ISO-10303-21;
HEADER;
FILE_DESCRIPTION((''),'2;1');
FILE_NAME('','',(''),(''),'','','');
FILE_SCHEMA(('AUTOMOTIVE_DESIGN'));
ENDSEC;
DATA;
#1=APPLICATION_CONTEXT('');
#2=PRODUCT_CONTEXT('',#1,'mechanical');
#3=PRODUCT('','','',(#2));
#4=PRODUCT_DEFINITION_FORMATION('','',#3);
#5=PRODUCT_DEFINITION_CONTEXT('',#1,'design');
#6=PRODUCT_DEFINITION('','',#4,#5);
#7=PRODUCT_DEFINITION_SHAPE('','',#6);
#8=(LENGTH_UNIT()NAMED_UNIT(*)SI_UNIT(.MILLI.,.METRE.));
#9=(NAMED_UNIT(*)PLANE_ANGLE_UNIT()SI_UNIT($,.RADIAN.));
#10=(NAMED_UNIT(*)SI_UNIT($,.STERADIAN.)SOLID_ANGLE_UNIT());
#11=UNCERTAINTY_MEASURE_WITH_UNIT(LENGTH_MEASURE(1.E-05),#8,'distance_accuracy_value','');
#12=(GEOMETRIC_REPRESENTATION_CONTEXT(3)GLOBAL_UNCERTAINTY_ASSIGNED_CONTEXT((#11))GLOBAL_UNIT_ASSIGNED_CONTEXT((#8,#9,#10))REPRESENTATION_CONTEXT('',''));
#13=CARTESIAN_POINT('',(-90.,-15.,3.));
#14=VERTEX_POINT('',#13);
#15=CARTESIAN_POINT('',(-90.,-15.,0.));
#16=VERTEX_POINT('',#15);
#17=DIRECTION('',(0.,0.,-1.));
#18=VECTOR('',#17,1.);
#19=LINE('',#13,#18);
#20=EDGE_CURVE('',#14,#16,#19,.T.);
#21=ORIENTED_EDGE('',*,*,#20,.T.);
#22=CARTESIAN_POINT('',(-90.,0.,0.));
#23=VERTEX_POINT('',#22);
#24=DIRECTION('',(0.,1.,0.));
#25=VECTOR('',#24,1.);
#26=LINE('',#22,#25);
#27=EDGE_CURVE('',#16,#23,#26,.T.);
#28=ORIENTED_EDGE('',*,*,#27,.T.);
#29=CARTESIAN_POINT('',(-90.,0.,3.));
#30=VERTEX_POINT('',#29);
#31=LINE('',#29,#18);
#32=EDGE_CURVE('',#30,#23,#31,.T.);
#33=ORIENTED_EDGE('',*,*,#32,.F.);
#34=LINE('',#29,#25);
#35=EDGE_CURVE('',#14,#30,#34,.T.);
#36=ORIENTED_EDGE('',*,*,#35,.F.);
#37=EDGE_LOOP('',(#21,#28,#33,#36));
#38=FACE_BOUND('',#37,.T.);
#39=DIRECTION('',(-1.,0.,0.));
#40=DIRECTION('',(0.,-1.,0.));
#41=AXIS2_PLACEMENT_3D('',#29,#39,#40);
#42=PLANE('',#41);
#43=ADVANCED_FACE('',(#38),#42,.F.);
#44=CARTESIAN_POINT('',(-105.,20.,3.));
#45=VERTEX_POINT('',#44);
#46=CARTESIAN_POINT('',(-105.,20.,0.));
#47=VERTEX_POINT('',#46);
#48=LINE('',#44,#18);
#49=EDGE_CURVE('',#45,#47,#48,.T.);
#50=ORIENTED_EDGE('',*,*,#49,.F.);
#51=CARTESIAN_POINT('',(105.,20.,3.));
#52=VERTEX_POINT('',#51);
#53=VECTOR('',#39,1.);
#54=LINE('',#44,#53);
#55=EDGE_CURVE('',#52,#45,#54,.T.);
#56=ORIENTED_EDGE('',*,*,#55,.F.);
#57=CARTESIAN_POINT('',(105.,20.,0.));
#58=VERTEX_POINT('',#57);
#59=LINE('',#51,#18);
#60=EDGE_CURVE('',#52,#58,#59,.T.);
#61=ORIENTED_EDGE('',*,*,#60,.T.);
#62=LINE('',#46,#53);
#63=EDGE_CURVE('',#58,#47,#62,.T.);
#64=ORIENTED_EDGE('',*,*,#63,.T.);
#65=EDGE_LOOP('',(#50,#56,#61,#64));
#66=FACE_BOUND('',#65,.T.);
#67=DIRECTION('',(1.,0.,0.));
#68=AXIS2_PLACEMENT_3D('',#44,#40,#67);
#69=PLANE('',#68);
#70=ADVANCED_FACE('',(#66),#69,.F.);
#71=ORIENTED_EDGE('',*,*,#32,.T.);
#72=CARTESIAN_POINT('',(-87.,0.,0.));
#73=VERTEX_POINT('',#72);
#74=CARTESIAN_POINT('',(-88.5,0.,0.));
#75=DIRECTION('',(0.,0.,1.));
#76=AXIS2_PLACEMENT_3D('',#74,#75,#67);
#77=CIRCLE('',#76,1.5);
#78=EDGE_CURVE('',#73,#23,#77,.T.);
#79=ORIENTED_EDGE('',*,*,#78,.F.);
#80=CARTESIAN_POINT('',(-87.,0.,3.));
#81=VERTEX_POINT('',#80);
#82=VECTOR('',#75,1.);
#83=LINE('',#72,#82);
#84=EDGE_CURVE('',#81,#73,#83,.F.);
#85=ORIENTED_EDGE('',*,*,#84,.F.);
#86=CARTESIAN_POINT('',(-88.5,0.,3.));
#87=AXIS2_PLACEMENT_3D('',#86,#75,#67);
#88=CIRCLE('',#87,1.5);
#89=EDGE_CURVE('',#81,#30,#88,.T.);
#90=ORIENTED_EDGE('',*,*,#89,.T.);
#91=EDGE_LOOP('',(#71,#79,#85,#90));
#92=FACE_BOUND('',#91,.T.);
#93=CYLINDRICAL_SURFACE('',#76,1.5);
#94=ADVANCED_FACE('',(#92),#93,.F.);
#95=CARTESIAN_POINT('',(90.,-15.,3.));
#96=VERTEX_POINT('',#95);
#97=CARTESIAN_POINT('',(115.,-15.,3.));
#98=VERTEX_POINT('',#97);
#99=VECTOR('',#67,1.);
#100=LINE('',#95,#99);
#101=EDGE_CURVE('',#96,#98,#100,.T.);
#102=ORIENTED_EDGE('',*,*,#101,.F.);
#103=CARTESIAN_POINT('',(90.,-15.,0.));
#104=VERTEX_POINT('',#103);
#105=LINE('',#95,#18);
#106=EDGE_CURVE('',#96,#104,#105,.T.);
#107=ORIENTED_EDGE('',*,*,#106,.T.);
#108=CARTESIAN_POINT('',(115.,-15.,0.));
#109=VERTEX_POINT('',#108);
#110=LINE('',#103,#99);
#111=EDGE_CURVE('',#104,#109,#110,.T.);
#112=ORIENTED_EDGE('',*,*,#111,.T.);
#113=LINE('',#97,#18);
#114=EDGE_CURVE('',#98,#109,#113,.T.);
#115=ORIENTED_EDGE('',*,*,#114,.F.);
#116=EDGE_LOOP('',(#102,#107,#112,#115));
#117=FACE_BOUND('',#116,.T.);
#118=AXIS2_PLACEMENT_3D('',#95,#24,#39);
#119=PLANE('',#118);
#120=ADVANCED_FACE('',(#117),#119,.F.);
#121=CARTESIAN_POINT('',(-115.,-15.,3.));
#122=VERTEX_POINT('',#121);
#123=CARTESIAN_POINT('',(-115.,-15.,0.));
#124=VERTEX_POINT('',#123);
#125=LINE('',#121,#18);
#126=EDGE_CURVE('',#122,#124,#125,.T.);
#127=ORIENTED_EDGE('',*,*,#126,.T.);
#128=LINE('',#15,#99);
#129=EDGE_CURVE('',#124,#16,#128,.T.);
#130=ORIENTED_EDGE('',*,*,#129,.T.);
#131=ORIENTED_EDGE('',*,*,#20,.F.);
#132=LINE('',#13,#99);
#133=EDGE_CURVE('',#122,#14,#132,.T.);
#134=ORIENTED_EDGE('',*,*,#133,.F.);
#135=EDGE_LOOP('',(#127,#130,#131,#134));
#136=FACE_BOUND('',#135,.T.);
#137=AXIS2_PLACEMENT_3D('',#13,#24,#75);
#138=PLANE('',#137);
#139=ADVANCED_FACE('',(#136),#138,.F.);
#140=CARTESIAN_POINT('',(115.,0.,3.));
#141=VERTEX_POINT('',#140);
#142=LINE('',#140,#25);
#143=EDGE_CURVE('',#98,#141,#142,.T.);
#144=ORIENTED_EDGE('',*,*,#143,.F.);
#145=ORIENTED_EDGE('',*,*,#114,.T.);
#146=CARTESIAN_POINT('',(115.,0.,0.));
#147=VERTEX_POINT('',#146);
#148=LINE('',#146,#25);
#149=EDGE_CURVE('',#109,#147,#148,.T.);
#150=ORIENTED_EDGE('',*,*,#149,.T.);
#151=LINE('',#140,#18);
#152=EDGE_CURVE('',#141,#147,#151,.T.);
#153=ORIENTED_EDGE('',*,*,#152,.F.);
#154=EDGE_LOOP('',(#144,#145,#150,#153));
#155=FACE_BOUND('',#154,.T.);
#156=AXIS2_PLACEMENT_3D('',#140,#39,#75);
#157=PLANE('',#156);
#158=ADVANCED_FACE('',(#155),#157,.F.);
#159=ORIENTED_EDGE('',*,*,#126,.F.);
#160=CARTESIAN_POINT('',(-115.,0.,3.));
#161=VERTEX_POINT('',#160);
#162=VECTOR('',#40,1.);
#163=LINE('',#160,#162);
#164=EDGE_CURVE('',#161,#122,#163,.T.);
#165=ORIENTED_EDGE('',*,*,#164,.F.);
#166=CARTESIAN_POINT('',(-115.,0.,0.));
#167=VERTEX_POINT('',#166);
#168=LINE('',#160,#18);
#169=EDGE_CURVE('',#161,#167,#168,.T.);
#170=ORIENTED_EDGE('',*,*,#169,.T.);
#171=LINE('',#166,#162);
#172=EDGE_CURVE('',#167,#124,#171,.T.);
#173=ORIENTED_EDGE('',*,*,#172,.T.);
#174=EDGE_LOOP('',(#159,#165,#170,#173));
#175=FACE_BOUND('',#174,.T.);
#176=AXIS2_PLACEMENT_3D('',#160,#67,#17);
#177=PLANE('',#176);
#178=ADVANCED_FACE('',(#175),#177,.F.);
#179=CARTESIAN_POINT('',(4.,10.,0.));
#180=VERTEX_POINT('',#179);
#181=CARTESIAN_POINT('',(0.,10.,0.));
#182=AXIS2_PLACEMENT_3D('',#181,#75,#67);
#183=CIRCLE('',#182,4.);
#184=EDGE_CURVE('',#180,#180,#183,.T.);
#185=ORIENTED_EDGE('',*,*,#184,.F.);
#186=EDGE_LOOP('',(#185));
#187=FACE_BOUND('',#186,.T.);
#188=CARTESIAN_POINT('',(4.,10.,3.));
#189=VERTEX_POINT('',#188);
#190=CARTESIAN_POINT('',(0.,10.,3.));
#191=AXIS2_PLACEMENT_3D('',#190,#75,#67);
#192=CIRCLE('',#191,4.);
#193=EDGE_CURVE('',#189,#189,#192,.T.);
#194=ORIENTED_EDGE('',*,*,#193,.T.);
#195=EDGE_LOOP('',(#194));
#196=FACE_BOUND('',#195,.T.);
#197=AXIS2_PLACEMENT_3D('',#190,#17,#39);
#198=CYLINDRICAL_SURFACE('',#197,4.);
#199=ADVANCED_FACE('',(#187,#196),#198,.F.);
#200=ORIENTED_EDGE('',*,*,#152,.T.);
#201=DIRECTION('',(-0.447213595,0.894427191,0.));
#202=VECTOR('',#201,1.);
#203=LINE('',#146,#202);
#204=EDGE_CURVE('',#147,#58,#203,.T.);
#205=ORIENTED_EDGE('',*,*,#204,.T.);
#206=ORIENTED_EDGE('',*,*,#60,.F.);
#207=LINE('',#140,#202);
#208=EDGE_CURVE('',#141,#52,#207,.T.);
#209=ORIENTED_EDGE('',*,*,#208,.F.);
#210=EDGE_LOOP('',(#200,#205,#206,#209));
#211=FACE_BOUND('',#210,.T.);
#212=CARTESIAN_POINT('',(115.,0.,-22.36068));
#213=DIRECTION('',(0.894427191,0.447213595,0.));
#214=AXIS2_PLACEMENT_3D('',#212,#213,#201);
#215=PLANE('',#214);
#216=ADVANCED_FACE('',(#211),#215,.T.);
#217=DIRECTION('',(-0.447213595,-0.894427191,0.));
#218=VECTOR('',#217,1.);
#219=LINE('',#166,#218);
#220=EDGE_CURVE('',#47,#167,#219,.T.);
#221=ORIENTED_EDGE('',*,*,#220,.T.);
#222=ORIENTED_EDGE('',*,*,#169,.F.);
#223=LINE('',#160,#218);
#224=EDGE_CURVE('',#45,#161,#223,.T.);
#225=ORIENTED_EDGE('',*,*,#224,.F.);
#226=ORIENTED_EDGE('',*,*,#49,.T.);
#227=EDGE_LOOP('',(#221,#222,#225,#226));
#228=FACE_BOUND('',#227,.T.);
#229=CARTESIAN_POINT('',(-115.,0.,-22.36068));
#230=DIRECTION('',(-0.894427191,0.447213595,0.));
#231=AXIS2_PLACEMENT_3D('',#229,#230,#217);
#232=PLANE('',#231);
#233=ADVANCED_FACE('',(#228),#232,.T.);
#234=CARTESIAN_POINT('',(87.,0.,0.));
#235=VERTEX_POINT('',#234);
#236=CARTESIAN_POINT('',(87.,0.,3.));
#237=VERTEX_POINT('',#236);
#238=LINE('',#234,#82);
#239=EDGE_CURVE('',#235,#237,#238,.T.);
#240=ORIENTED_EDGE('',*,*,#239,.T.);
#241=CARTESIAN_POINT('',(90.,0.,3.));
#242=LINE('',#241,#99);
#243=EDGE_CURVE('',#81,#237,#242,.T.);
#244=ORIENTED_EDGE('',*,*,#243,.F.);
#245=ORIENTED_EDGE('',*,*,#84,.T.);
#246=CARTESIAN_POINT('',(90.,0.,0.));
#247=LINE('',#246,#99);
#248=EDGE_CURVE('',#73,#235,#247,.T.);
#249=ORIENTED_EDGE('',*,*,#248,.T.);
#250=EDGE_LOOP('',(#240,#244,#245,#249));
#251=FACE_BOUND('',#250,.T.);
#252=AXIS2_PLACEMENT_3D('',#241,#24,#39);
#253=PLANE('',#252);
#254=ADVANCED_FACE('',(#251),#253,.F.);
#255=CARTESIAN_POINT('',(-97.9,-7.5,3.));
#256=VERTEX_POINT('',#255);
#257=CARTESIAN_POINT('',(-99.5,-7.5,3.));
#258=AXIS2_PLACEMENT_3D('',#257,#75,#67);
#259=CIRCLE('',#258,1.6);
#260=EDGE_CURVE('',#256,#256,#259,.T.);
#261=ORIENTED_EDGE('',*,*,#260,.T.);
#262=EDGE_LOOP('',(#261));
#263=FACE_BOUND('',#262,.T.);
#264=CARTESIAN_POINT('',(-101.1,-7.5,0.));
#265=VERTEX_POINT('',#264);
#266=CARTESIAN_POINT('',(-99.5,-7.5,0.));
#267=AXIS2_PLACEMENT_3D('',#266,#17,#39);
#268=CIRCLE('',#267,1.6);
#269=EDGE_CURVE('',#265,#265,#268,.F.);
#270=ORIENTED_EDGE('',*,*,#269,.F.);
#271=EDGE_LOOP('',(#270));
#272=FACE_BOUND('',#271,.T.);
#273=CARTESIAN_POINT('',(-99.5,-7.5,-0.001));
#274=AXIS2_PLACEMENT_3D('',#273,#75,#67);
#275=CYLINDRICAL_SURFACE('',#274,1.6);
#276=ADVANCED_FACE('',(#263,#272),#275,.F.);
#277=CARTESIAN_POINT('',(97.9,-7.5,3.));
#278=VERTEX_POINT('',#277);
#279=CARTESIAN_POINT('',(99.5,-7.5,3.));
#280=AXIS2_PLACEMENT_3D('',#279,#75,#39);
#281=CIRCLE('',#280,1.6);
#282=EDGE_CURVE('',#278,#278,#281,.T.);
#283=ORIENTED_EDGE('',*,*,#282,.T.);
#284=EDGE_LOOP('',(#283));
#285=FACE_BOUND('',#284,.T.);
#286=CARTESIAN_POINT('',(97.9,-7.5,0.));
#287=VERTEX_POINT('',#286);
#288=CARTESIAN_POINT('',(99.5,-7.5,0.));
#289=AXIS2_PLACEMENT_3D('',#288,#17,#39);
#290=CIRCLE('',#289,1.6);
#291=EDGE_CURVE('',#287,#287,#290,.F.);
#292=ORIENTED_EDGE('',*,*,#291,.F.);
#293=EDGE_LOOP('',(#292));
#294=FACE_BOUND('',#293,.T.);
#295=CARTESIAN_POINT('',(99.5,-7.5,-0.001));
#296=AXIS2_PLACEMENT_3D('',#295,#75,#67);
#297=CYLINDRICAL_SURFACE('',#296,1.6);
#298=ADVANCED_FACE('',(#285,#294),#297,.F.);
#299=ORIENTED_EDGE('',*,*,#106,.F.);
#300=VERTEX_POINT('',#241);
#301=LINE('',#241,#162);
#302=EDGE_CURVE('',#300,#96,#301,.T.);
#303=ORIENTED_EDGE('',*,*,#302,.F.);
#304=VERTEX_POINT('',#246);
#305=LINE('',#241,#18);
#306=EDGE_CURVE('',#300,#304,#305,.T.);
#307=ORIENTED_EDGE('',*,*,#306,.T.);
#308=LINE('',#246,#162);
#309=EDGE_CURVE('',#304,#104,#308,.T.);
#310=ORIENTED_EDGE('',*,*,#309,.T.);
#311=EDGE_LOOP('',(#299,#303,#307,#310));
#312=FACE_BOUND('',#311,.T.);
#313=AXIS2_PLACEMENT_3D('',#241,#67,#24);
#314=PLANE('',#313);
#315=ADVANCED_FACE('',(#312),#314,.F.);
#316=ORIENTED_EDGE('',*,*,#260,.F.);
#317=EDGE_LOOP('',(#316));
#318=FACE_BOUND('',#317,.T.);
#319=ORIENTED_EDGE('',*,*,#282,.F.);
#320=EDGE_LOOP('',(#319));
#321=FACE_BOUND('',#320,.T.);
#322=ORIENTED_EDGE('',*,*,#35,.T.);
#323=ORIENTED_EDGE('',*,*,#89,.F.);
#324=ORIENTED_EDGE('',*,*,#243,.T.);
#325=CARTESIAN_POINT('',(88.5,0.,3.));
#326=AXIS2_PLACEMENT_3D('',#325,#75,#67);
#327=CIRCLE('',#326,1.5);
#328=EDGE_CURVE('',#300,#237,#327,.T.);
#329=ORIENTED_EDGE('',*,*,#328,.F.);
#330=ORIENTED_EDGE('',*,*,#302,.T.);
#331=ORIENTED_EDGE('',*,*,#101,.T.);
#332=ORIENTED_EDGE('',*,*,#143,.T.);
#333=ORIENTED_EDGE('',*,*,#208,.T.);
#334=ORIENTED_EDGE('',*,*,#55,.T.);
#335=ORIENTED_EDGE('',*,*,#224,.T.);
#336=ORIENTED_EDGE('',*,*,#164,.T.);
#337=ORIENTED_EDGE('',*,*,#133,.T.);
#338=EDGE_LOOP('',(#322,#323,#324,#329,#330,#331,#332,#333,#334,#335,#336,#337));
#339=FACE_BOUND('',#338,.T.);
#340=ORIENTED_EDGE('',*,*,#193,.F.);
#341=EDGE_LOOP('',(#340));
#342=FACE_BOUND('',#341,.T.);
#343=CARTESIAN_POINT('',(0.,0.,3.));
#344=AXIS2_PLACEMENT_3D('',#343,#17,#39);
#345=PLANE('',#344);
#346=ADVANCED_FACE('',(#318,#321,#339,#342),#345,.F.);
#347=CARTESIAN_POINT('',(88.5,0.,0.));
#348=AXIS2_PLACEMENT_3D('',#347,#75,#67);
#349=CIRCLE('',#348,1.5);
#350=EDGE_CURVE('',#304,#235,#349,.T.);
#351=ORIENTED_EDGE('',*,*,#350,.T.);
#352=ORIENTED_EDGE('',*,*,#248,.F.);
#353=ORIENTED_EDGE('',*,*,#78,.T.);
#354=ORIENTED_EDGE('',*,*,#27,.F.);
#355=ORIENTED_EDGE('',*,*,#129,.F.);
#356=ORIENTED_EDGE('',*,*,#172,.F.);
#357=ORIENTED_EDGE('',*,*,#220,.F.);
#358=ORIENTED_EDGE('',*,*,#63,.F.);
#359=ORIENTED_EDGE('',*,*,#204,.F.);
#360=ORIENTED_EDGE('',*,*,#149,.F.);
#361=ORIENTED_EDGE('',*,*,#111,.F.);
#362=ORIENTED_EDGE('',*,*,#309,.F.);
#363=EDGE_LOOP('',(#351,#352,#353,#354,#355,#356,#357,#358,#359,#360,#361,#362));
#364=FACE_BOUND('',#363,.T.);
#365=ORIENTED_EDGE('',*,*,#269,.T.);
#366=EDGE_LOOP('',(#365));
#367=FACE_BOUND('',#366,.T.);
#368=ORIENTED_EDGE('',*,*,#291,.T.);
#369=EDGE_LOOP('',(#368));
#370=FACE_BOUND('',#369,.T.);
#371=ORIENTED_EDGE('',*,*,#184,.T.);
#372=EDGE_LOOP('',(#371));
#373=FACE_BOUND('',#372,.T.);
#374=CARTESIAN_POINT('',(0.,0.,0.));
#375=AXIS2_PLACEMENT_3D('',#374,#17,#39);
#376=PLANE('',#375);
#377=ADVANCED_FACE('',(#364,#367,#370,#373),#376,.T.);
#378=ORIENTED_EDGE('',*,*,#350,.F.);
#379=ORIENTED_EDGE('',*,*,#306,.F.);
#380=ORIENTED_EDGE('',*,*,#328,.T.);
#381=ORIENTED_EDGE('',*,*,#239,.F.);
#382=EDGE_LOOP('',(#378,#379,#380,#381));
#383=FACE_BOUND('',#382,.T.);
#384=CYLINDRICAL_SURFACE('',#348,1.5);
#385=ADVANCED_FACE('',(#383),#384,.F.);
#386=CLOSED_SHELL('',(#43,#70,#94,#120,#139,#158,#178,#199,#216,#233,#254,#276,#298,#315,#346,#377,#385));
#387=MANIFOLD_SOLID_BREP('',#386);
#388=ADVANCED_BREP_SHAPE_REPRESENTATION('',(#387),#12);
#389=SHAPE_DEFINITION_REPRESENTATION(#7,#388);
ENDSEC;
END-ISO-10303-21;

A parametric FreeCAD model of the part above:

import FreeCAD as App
import Part
import Sketcher
from FreeCAD import Vector
Q = App.Units.Quantity

doc = App.newDocument("Part")
body = doc.addObject("PartDesign::Body", "Body")

# Sketch on XY plane
sketch1 = body.newObject("Sketcher::SketchObject", "Sketch")
sketch1.AttachmentSupport = (doc.getObject("XY_Plane"), [""])
sketch1.MapMode = "FlatFace"
sketch1.addGeometry([
    Part.LineSegment(Vector(-90, 0, 0), Vector(90, 0, 0)),  # 0
    Part.LineSegment(Vector(90, 0, 0), Vector(90, -15, 0)),  # 1
    Part.LineSegment(Vector(90, -15, 0), Vector(115, -15, 0)),  # 2
    Part.LineSegment(Vector(115, -15, 0), Vector(115, 0, 0)),  # 3
    Part.LineSegment(Vector(115, 0, 0), Vector(105, 0, 0)),  # 4
    Part.LineSegment(Vector(105, 0, 0), Vector(105, 20, 0)),  # 5
    Part.LineSegment(Vector(105, 20, 0), Vector(-105, 20, 0)),  # 6
    Part.LineSegment(Vector(-105, 20, 0), Vector(-105, 0, 0)),  # 7
    Part.LineSegment(Vector(-105, 0, 0), Vector(-115, 0, 0)),  # 8
    Part.LineSegment(Vector(-115, 0, 0), Vector(-115, -15, 0)),  # 9
    Part.LineSegment(Vector(-115, -15, 0), Vector(-90, -15, 0)),  # 10
    Part.LineSegment(Vector(-90, -15, 0), Vector(-90, 0, 0)),  # 11
    Part.Circle(Vector(0, 10, 0), Vector(0, 0, 1), 4),  # 12
], False)
sketch1.addConstraint([
    Sketcher.Constraint("Coincident", 0, 2, 1, 1),
    Sketcher.Constraint("Coincident", 1, 2, 2, 1),
    Sketcher.Constraint("Coincident", 2, 2, 3, 1),
    Sketcher.Constraint("Coincident", 3, 2, 4, 1),
    Sketcher.Constraint("Coincident", 4, 2, 5, 1),
    Sketcher.Constraint("Coincident", 5, 2, 6, 1),
    Sketcher.Constraint("Coincident", 6, 2, 7, 1),
    Sketcher.Constraint("Coincident", 7, 2, 8, 1),
    Sketcher.Constraint("Coincident", 8, 2, 9, 1),
    Sketcher.Constraint("Coincident", 9, 2, 10, 1),
    Sketcher.Constraint("Coincident", 10, 2, 11, 1),
    Sketcher.Constraint("Coincident", 11, 2, 0, 1),
    Sketcher.Constraint("Horizontal", 0),
    Sketcher.Constraint("Vertical", 1),
    Sketcher.Constraint("Horizontal", 2),
    Sketcher.Constraint("Vertical", 3),
    Sketcher.Constraint("Horizontal", 4),
    Sketcher.Constraint("Vertical", 5),
    Sketcher.Constraint("Horizontal", 6),
    Sketcher.Constraint("Vertical", 7),
    Sketcher.Constraint("Horizontal", 8),
    Sketcher.Constraint("Vertical", 9),
    Sketcher.Constraint("Horizontal", 10),
    Sketcher.Constraint("Vertical", 11),
    Sketcher.Constraint("Symmetric", 4, 2, 7, 2, -1, 1),
    Sketcher.Constraint("Symmetric", 0, 2, 11, 2, -1, 1),
    Sketcher.Constraint("Symmetric", 3, 2, 8, 2, -2),
    Sketcher.Constraint("PointOnObject", 12, 3, -2),
    Sketcher.Constraint("Horizontal", 2, 2, 9, 2),
    Sketcher.Constraint("Diameter", 12, Q("8 mm")),
    Sketcher.Constraint("DistanceX", 0, 1, 0, 2, Q("180 mm")),
    Sketcher.Constraint("DistanceX", 2, 1, 2, 2, Q("25 mm")),
    Sketcher.Constraint("DistanceX", 4, 2, 4, 1, Q("10 mm")),
    Sketcher.Constraint("DistanceY", 1, 2, 1, 1, Q("15 mm")),
    Sketcher.Constraint("DistanceY", 5, 1, 5, 2, Q("20 mm")),
    Sketcher.Constraint("DistanceY", -1, 1, 12, 3, Q("10 mm")),
])
pad1 = body.newObject("PartDesign::Pad", "Pad")
pad1.Profile = sketch1
pad1.Length = 3

# Sketch on XY plane
sketch2 = body.newObject("Sketcher::SketchObject", "Sketch001")
sketch2.AttachmentSupport = (doc.getObject("XY_Plane"), [""])
sketch2.MapMode = "FlatFace"
sketch2.AttachmentOffset = App.Placement(Vector(0, 0, 3), App.Rotation())
sketch2.addGeometry([
    Part.Circle(Vector(-88.5, 0, 0), Vector(0, 0, 1), 1.5),
    Part.Circle(Vector(88.5, 0, 0), Vector(0, 0, 1), 1.5),
], False)
sketch2.addConstraint([
    Sketcher.Constraint("Equal", 0, 1),
    Sketcher.Constraint("Symmetric", 0, 3, 1, 3, -1, 1),
    Sketcher.Constraint("PointOnObject", 0, 3, -1),
    Sketcher.Constraint("Diameter", 0, Q("3 mm")),
    Sketcher.Constraint("DistanceX", 0, 3, 1, 3, Q("177 mm")),
])
pocket1 = body.newObject("PartDesign::Pocket", "Pocket")
pocket1.Profile = sketch2
pocket1.Type = "ThroughAll"

# Sketch on XY plane
sketch3 = body.newObject("Sketcher::SketchObject", "Sketch002")
sketch3.AttachmentSupport = (doc.getObject("XY_Plane"), [""])
sketch3.MapMode = "FlatFace"
sketch3.AttachmentOffset = App.Placement(Vector(0, 0, 3), App.Rotation())
sketch3.addGeometry([
    Part.LineSegment(Vector(-105, 20, 0), Vector(-115, 0, 0)),  # 0
    Part.LineSegment(Vector(-115, 0, 0), Vector(-105, 0, 0)),  # 1
    Part.LineSegment(Vector(-105, 0, 0), Vector(-105, 20, 0)),  # 2
    Part.LineSegment(Vector(105, 20, 0), Vector(105, 0, 0)),  # 3
    Part.LineSegment(Vector(105, 0, 0), Vector(115, 0, 0)),  # 4
    Part.LineSegment(Vector(115, 0, 0), Vector(105, 20, 0)),  # 5
], False)
sketch3.addConstraint([
    Sketcher.Constraint("Coincident", 0, 2, 1, 1),
    Sketcher.Constraint("Coincident", 1, 2, 2, 1),
    Sketcher.Constraint("Coincident", 2, 2, 0, 1),
    Sketcher.Constraint("Coincident", 3, 2, 4, 1),
    Sketcher.Constraint("Coincident", 4, 2, 5, 1),
    Sketcher.Constraint("Coincident", 5, 2, 3, 1),
    Sketcher.Constraint("Horizontal", 1),
    Sketcher.Constraint("Vertical", 2),
    Sketcher.Constraint("Vertical", 3),
    Sketcher.Constraint("Horizontal", 4),
    Sketcher.Constraint("Symmetric", 1, 2, 3, 2, -1, 1),
    Sketcher.Constraint("Symmetric", 0, 2, 4, 2, -2),
    Sketcher.Constraint("Horizontal", 2, 2, 5, 2),
    Sketcher.Constraint("DistanceX", 1, 1, 1, 2, Q("10 mm")),
    Sketcher.Constraint("DistanceY", 2, 1, 2, 2, Q("20 mm")),
    Sketcher.Constraint("DistanceX", 0, 2, -1, 1, Q("115 mm")),
])
pad2 = body.newObject("PartDesign::Pad", "Pad001")
pad2.Profile = sketch3
pad2.Length = 3
pad2.Reversed = True

# Sketch on XY plane
sketch4 = body.newObject("Sketcher::SketchObject", "Sketch003")
sketch4.AttachmentSupport = (doc.getObject("XY_Plane"), [""])
sketch4.MapMode = "FlatFace"
sketch4.AttachmentOffset = App.Placement(Vector(0, 0, 3), App.Rotation())
sketch4.addGeometry(Part.Circle(Vector(-99.5, -7.5, 0), Vector(0, 0, 1), 1.6), False)
sketch4.addConstraint([
    Sketcher.Constraint("Diameter", 0, Q("3.2 mm")),
    Sketcher.Constraint("DistanceX", 0, 3, -1, 1, Q("99.5 mm")),
    Sketcher.Constraint("DistanceY", 0, 3, -1, 1, Q("7.5 mm")),
])
pocket2 = body.newObject("PartDesign::Pocket", "Pocket001")
pocket2.Profile = sketch4
pocket2.Type = "UpToFirst"

# Sketch on XY plane
sketch5 = body.newObject("Sketcher::SketchObject", "Sketch004")
sketch5.AttachmentSupport = (doc.getObject("XY_Plane"), [""])
sketch5.MapMode = "FlatFace"
sketch5.AttachmentOffset = App.Placement(Vector(0, 0, 3), App.Rotation())
sketch5.addGeometry(Part.Circle(Vector(99.5, -7.5, 0), Vector(0, 0, 1), 1.6), False)
sketch5.addConstraint([
    Sketcher.Constraint("Diameter", 0, Q("3.2 mm")),
    Sketcher.Constraint("DistanceX", -1, 1, 0, 3, Q("99.5 mm")),
    Sketcher.Constraint("DistanceY", 0, 3, -1, 1, Q("7.5 mm")),
])
pocket3 = body.newObject("PartDesign::Pocket", "Pocket002")
pocket3.Profile = sketch5
pocket3.Type = "UpToFirst"

doc.recompute()
